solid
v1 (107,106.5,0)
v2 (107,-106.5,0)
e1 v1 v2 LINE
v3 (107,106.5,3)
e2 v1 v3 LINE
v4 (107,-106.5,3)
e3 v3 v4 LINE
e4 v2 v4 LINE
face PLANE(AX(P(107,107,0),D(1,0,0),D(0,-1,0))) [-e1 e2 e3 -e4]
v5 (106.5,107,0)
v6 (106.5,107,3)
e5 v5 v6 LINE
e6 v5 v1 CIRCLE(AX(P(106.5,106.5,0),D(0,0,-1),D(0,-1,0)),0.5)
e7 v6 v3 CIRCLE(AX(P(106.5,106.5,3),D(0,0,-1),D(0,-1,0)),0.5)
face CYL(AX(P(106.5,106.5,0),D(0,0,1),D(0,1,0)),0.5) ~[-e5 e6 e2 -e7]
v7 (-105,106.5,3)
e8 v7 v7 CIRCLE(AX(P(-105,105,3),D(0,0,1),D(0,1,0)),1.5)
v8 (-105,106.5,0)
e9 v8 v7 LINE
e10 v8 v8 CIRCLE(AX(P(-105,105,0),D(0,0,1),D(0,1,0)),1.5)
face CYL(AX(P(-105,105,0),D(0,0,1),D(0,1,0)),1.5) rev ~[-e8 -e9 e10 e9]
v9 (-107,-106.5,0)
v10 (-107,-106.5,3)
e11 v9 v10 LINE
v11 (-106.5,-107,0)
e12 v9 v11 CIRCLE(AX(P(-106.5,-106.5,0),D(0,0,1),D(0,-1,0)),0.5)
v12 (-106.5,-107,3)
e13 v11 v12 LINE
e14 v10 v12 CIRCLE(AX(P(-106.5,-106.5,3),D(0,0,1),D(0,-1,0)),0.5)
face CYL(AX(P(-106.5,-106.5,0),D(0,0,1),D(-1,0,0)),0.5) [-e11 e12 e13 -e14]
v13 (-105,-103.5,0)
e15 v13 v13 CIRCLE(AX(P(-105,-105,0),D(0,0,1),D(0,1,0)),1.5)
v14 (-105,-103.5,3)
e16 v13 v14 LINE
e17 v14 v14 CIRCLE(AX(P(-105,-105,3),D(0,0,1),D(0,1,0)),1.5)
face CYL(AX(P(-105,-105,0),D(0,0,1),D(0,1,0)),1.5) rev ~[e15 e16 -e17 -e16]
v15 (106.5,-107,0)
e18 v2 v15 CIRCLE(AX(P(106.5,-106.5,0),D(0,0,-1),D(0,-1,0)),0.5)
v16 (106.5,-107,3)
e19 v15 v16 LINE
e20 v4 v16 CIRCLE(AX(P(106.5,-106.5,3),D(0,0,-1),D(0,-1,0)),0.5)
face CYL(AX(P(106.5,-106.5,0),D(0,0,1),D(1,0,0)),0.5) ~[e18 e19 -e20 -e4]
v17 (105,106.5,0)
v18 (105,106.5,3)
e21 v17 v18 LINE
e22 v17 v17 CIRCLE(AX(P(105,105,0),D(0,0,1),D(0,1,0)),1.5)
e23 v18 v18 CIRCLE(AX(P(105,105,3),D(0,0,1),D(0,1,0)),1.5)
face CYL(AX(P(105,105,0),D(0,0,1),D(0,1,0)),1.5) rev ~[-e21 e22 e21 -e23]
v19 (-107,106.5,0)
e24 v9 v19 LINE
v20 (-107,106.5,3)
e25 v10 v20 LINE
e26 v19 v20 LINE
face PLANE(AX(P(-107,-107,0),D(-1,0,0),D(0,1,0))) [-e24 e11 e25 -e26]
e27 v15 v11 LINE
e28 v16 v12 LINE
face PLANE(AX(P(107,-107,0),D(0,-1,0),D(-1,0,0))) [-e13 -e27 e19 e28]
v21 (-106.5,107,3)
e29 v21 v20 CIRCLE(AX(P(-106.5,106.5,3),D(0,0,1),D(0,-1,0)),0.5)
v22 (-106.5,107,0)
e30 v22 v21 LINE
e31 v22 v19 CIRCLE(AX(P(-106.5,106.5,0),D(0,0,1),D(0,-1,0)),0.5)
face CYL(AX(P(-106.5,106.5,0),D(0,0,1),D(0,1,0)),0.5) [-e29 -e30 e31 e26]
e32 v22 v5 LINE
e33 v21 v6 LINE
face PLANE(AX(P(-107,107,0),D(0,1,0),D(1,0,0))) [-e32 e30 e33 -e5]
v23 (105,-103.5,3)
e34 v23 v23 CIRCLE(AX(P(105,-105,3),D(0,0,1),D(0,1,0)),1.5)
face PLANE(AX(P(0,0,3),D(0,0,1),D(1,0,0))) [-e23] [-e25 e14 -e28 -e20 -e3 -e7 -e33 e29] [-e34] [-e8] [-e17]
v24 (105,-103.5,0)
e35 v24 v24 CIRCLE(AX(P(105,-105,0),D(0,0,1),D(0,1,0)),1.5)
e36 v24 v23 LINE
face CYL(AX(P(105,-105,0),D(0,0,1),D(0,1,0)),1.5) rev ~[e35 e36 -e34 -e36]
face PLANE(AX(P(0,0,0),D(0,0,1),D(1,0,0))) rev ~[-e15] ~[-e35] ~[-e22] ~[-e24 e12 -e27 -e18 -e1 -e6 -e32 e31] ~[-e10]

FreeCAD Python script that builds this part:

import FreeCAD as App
import Part
import Sketcher

V = App.Vector
Q = App.Units.Quantity


def edges_at(feature, points):
    """Names of the edges that pass closest to the given points."""
    edges = feature.Shape.Edges
    near = lambda p: min(range(len(edges)), key=lambda i: edges[i].distToShape(Part.Vertex(*p))[0])
    return sorted({f"Edge{near(p) + 1}" for p in points})


def add_polygon(sketch, points):
    """Adds a closed chain of lines whose ends are joined by coincident constraints."""
    first, n = sketch.GeometryCount, len(points)
    for a, b in zip(points, points[1:] + points[:1]):
        sketch.addGeometry(Part.LineSegment(App.Vector(*a, 0), App.Vector(*b, 0)), False)
    for i in range(n):
        sketch.addConstraint(Sketcher.Constraint("Coincident", first + i, 2, first + (i + 1) % n, 1))

doc = App.newDocument("Part")
body = doc.addObject("PartDesign::Body", "Body")

sketch1 = body.newObject("Sketcher::SketchObject", "Sketch")
sketch1.AttachmentSupport = (doc.getObject("XY_Plane"), [""])
sketch1.MapMode = "FlatFace"
add_polygon(sketch1, [(107, 107), (-107, 107), (-107, -107), (107, -107)])
sketch1.addConstraint([
    Sketcher.Constraint("Horizontal", 0),
    Sketcher.Constraint("Vertical", 1),
    Sketcher.Constraint("Horizontal", 2),
    Sketcher.Constraint("Vertical", 3),
    Sketcher.Constraint("Symmetric", 0, 2, 2, 2, -1, 1),
    Sketcher.Constraint("Equal", 2, 1),
    Sketcher.Constraint("DistanceX", 0, 2, 0, 1, Q("214 mm")),
])
pad1 = body.newObject("PartDesign::Pad", "Pad")
pad1.Profile = sketch1
pad1.Length = 3

sketch2 = body.newObject("Sketcher::SketchObject", "Sketch001")
sketch2.AttachmentSupport = (doc.getObject("XY_Plane"), [""])
sketch2.MapMode = "FlatFace"
sketch2.addGeometry([
    Part.Circle(V(105, 105, 0), V(0, 0, 1), 1.5),
    Part.Circle(V(-105, 105, 0), V(0, 0, 1), 1.5),
    Part.Circle(V(-105, -105, 0), V(0, 0, 1), 1.5),
    Part.Circle(V(105, -105, 0), V(0, 0, 1), 1.5),
], False)
sketch2.addConstraint([
    Sketcher.Constraint("Equal", 0, 1),
    Sketcher.Constraint("Equal", 1, 2),
    Sketcher.Constraint("Equal", 2, 3),
    Sketcher.Constraint("Symmetric", 0, 3, 2, 3, -1, 1),
    Sketcher.Constraint("Symmetric", 1, 3, 3, 3, -1, 1),
    Sketcher.Constraint("Symmetric", 0, 3, 1, 3, -2),
    Sketcher.Constraint("Diameter", 0, Q("3 mm")),
    Sketcher.Constraint("DistanceX", -1, 1, 0, 3, Q("105 mm")),
    Sketcher.Constraint("DistanceY", -1, 1, 0, 3, Q("105 mm")),
])
doc.recompute()
hole = body.newObject("PartDesign::Hole", "Hole")
hole.Profile = sketch2
hole.ThreadType = "None"
hole.Diameter = 3
hole.DepthType = "ThroughAll"
hole.Reversed = True
doc.recompute()

fillet = body.newObject("PartDesign::Fillet", "Fillet")
fillet.Base = (hole, edges_at(hole, [
    (107, 107, 1.5),
    (-107, 107, 1.5),
    (-107, -107, 1.5),
    (107, -107, 1.5),
]))
fillet.Radius = 0.5

doc.recompute()
